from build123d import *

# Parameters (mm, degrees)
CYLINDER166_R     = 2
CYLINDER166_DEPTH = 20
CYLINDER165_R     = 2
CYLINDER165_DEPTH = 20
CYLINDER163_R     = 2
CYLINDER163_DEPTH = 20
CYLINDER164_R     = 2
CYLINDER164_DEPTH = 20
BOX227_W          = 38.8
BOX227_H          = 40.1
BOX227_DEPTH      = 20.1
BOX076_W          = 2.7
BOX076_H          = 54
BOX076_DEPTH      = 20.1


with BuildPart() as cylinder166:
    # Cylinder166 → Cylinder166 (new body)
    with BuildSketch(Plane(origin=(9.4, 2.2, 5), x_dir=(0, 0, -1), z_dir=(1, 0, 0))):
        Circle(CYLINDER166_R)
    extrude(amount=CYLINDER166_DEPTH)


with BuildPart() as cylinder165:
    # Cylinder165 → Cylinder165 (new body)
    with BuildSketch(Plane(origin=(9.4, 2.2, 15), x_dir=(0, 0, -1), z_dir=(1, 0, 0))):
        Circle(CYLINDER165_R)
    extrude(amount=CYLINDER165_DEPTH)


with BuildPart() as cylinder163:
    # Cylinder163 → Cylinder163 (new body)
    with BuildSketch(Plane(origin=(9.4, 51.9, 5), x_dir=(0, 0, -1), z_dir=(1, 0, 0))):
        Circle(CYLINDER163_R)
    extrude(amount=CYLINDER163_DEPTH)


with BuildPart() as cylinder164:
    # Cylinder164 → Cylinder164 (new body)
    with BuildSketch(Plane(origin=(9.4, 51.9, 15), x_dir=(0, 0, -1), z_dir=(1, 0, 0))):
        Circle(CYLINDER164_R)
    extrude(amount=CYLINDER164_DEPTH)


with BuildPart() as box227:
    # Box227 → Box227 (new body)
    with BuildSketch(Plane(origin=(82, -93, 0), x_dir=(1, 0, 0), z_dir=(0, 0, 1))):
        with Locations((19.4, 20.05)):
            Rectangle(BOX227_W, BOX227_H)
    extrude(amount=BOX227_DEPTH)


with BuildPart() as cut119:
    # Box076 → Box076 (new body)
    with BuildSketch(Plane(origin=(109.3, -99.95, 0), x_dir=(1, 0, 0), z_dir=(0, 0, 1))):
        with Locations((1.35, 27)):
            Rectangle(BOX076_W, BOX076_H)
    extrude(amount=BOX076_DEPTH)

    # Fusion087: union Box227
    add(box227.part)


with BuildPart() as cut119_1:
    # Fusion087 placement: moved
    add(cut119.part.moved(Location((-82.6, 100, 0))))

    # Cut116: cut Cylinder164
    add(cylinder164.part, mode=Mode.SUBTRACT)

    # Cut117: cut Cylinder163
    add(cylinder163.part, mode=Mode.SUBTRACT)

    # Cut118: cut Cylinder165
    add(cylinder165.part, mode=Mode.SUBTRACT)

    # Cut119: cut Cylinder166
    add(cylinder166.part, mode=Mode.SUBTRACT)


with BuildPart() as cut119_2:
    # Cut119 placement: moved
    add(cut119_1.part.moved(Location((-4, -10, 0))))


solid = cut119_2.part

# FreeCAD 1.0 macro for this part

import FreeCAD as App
import Part
import Sketcher

V = App.Vector

doc = App.newDocument("Part")
body = doc.addObject("PartDesign::Body", "Body")

# Sketch on YZ plane
sketch1 = body.newObject("Sketcher::SketchObject", "Sketch")
sketch1.AttachmentSupport = (doc.getObject("YZ_Plane"), [""])
sketch1.MapMode = "FlatFace"
sketch1.AttachmentOffset = App.Placement(V(0, 0, 9.4), App.Rotation())
sketch1.addGeometry(Part.Circle(V(2.2, 5, 0), V(0, 0, 1), 2), False)
sketch1.addConstraint([
    Sketcher.Constraint("Diameter", 0, 4.0),
    Sketcher.Constraint("DistanceY", -1, 1, 0, 3, 5.0),
    Sketcher.Constraint("DistanceX", -1, 1, 0, 3, 2.2),
])
pad1 = body.newObject("PartDesign::Pad", "Pad")
pad1.Profile = sketch1
pad1.Length = 20
body2 = doc.addObject("PartDesign::Body", "Body001")

# Sketch on YZ plane
sketch2 = body2.newObject("Sketcher::SketchObject", "Sketch001")
sketch2.AttachmentSupport = (doc.getObject("YZ_Plane001"), [""])
sketch2.MapMode = "FlatFace"
sketch2.AttachmentOffset = App.Placement(V(0, 0, 9.4), App.Rotation())
sketch2.addGeometry(Part.Circle(V(2.2, 15, 0), V(0, 0, 1), 2), False)
sketch2.addConstraint([
    Sketcher.Constraint("Diameter", 0, 4.0),
    Sketcher.Constraint("DistanceY", -1, 1, 0, 3, 15.0),
    Sketcher.Constraint("DistanceX", -1, 1, 0, 3, 2.2),
])
pad2 = body2.newObject("PartDesign::Pad", "Pad001")
pad2.Profile = sketch2
pad2.Length = 20
body3 = doc.addObject("PartDesign::Body", "Body002")

# Sketch on YZ plane
sketch3 = body3.newObject("Sketcher::SketchObject", "Sketch002")
sketch3.AttachmentSupport = (doc.getObject("YZ_Plane002"), [""])
sketch3.MapMode = "FlatFace"
sketch3.AttachmentOffset = App.Placement(V(0, 0, 9.4), App.Rotation())
sketch3.addGeometry(Part.Circle(V(51.9, 5, 0), V(0, 0, 1), 2), False)
sketch3.addConstraint([
    Sketcher.Constraint("Diameter", 0, 4.0),
    Sketcher.Constraint("DistanceY", -1, 1, 0, 3, 5.0),
    Sketcher.Constraint("DistanceX", -1, 1, 0, 3, 51.9),
])
pad3 = body3.newObject("PartDesign::Pad", "Pad002")
pad3.Profile = sketch3
pad3.Length = 20
body4 = doc.addObject("PartDesign::Body", "Body003")

# Sketch on YZ plane
sketch4 = body4.newObject("Sketcher::SketchObject", "Sketch003")
sketch4.AttachmentSupport = (doc.getObject("YZ_Plane003"), [""])
sketch4.MapMode = "FlatFace"
sketch4.AttachmentOffset = App.Placement(V(0, 0, 9.4), App.Rotation())
sketch4.addGeometry(Part.Circle(V(51.9, 15, 0), V(0, 0, 1), 2), False)
sketch4.addConstraint([
    Sketcher.Constraint("Diameter", 0, 4.0),
    Sketcher.Constraint("DistanceY", -1, 1, 0, 3, 15.0),
    Sketcher.Constraint("DistanceX", -1, 1, 0, 3, 51.9),
])
pad4 = body4.newObject("PartDesign::Pad", "Pad003")
pad4.Profile = sketch4
pad4.Length = 20
body5 = doc.addObject("PartDesign::Body", "Body004")

# Sketch on XY plane
sketch5 = body5.newObject("Sketcher::SketchObject", "Sketch004")
sketch5.AttachmentSupport = (doc.getObject("XY_Plane004"), [""])
sketch5.MapMode = "FlatFace"
sketch5.addGeometry([
    Part.LineSegment(V(82, -53, 0), V(82, -93, 0)),
    Part.LineSegment(V(82, -93, 0), V(121, -93, 0)),
    Part.LineSegment(V(121, -93, 0), V(121, -53, 0)),
    Part.LineSegment(V(121, -53, 0), V(82, -53, 0)),
], False)
sketch5.addConstraint([
    Sketcher.Constraint("Coincident", 0, 2, 1, 1),
    Sketcher.Constraint("Coincident", 1, 2, 2, 1),
    Sketcher.Constraint("Coincident", 2, 2, 3, 1),
    Sketcher.Constraint("Coincident", 3, 2, 0, 1),
    Sketcher.Constraint("Vertical", 0),
    Sketcher.Constraint("Horizontal", 1),
    Sketcher.Constraint("Vertical", 2),
    Sketcher.Constraint("Horizontal", 3),
    Sketcher.Constraint("DistanceX", 1, 1, 1, 2, 38.8),
    Sketcher.Constraint("DistanceY", 0, 2, 0, 1, 40.1),
    Sketcher.Constraint("DistanceX", -1, 1, 0, 2, 82.0),
    Sketcher.Constraint("DistanceY", 0, 2, -1, 1, 93.0),
])
pad5 = body5.newObject("PartDesign::Pad", "Pad004")
pad5.Profile = sketch5
pad5.Length = 20.1
body6 = doc.addObject("PartDesign::Body", "Body005")

# Sketch on XY plane
sketch6 = body6.newObject("Sketcher::SketchObject", "Sketch005")
sketch6.AttachmentSupport = (doc.getObject("XY_Plane005"), [""])
sketch6.MapMode = "FlatFace"
sketch6.addGeometry([
    Part.LineSegment(V(109.3, -46, 0), V(109.3, -100, 0)),
    Part.LineSegment(V(109.3, -100, 0), V(112, -100, 0)),
    Part.LineSegment(V(112, -100, 0), V(112, -46, 0)),
    Part.LineSegment(V(112, -46, 0), V(109.3, -46, 0)),
], False)
sketch6.addConstraint([
    Sketcher.Constraint("Coincident", 0, 2, 1, 1),
    Sketcher.Constraint("Coincident", 1, 2, 2, 1),
    Sketcher.Constraint("Coincident", 2, 2, 3, 1),
    Sketcher.Constraint("Coincident", 3, 2, 0, 1),
    Sketcher.Constraint("Vertical", 0),
    Sketcher.Constraint("Horizontal", 1),
    Sketcher.Constraint("Vertical", 2),
    Sketcher.Constraint("Horizontal", 3),
    Sketcher.Constraint("DistanceY", 0, 2, 0, 1, 54.0),
    Sketcher.Constraint("DistanceX", 1, 1, 1, 2, 2.7),
    Sketcher.Constraint("DistanceX", -1, 1, 1, 2, 112.0),
    Sketcher.Constraint("DistanceY", 0, 2, -1, 1, 99.95),
])
pad6 = body6.newObject("PartDesign::Pad", "Pad005")
pad6.Profile = sketch6
pad6.Length = 20.1
doc.recompute()

boolean = body6.newObject("PartDesign::Boolean", "Boolean")
boolean.Type = "Fuse"
boolean.addObjects([body5])
body7 = doc.addObject("PartDesign::Body", "Body006")
doc.recompute()

body6.Placement = App.Placement(V(-82.6, 100, 0), App.Rotation(V(0, 0, 1), 0))
boolean2 = body7.newObject("PartDesign::Boolean", "Boolean001")
boolean2.Type = "Fuse"
boolean2.addObjects([body6])
doc.recompute()

boolean3 = body7.newObject("PartDesign::Boolean", "Boolean002")
boolean3.Type = "Cut"
boolean3.addObjects([body4])
doc.recompute()

boolean4 = body7.newObject("PartDesign::Boolean", "Boolean003")
boolean4.Type = "Cut"
boolean4.addObjects([body3])
doc.recompute()

boolean5 = body7.newObject("PartDesign::Boolean", "Boolean004")
boolean5.Type = "Cut"
boolean5.addObjects([body2])
doc.recompute()

boolean6 = body7.newObject("PartDesign::Boolean", "Boolean005")
boolean6.Type = "Cut"
boolean6.addObjects([body])
body8 = doc.addObject("PartDesign::Body", "Body007")
doc.recompute()

body7.Placement = App.Placement(V(-4, -10, 0), App.Rotation(V(0, 0, 1), 0))
boolean7 = body8.newObject("PartDesign::Boolean", "Boolean006")
boolean7.Type = "Fuse"
boolean7.addObjects([body7])

doc.recompute()
